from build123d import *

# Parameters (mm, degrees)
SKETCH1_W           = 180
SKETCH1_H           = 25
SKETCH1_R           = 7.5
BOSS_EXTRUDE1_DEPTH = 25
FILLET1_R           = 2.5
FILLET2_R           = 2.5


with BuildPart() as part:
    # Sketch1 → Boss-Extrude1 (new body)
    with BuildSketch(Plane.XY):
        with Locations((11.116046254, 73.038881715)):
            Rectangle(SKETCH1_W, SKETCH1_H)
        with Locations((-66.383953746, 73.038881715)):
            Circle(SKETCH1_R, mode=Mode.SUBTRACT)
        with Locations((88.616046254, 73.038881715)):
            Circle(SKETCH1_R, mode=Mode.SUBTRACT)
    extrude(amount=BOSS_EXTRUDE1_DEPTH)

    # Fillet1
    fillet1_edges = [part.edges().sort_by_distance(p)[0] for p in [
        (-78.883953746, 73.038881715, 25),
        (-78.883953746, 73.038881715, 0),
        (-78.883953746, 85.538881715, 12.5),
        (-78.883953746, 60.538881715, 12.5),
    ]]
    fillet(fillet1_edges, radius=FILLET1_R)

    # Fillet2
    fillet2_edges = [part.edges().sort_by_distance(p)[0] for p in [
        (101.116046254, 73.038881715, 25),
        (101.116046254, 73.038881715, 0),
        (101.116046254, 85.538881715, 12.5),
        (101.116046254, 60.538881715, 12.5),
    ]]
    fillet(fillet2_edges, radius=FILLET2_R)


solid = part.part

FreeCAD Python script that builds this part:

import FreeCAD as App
import Part
import Sketcher

V = App.Vector


def edges_at(feature, points):
    """Names of the edges that pass closest to the given points."""
    edges = feature.Shape.Edges
    near = lambda p: min(range(len(edges)), key=lambda i: edges[i].distToShape(Part.Vertex(*p))[0])
    return sorted({f"Edge{near(p) + 1}" for p in points})


def add_polygon(sketch, points):
    """Adds a closed chain of lines whose ends are joined by coincident constraints."""
    first, n = sketch.GeometryCount, len(points)
    for a, b in zip(points, points[1:] + points[:1]):
        sketch.addGeometry(Part.LineSegment(App.Vector(*a, 0), App.Vector(*b, 0)), False)
    for i in range(n):
        sketch.addConstraint(Sketcher.Constraint("Coincident", first + i, 2, first + (i + 1) % n, 1))

doc = App.newDocument("Part")
body = doc.addObject("PartDesign::Body", "Body")

sketch1 = body.newObject("Sketcher::SketchObject", "Sketch")
sketch1.AttachmentSupport = (doc.getObject("XY_Plane"), [""])
sketch1.MapMode = "FlatFace"
add_polygon(sketch1, [(-79, 86), (-79, 61), (101, 61), (101, 86)])
sketch1.addGeometry(Part.Circle(V(-66, 73, 0), V(0, 0, 1), 8), False)
sketch1.addGeometry(Part.Circle(V(89, 73, 0), V(0, 0, 1), 8), False)
sketch1.addConstraint([
    Sketcher.Constraint("Vertical", 0),
    Sketcher.Constraint("Horizontal", 1),
    Sketcher.Constraint("Vertical", 2),
    Sketcher.Constraint("Horizontal", 3),
    Sketcher.Constraint("Equal", 4, 5),
    Sketcher.Constraint("Horizontal", 4, 3, 5, 3),
    Sketcher.Constraint("Diameter", 4, 15.0),
    Sketcher.Constraint("DistanceX", 1, 1, 1, 2, 180.0),
    Sketcher.Constraint("DistanceY", 0, 2, 0, 1, 25.0),
    Sketcher.Constraint("DistanceX", 4, 3, 5, 3, 155.0),
    Sketcher.Constraint("DistanceX", 0, 2, 4, 3, 12.5),
    Sketcher.Constraint("DistanceY", 0, 2, 4, 3, 12.5),
    Sketcher.Constraint("DistanceY", -1, 1, 4, 3, 73.038882),
    Sketcher.Constraint("DistanceX", 4, 3, -1, 1, 66.383954),
])
pad1 = body.newObject("PartDesign::Pad", "Pad")
pad1.Profile = sketch1
pad1.Length = 25
doc.recompute()

fillet = body.newObject("PartDesign::Fillet", "Fillet")
fillet.Base = (pad1, edges_at(pad1, [
    (-78.884, 73.039, 25),
    (-78.884, 73.039, 0),
    (-78.884, 85.539, 12.5),
    (-78.884, 60.539, 12.5),
]))
fillet.Radius = 2.5
doc.recompute()

fillet2 = body.newObject("PartDesign::Fillet", "Fillet001")
fillet2.Base = (fillet, edges_at(fillet, [
    (101.116, 73.039, 25),
    (101.116, 73.039, 0),
    (101.116, 85.539, 12.5),
    (101.116, 60.539, 12.5),
]))
fillet2.Radius = 2.5

doc.recompute()
